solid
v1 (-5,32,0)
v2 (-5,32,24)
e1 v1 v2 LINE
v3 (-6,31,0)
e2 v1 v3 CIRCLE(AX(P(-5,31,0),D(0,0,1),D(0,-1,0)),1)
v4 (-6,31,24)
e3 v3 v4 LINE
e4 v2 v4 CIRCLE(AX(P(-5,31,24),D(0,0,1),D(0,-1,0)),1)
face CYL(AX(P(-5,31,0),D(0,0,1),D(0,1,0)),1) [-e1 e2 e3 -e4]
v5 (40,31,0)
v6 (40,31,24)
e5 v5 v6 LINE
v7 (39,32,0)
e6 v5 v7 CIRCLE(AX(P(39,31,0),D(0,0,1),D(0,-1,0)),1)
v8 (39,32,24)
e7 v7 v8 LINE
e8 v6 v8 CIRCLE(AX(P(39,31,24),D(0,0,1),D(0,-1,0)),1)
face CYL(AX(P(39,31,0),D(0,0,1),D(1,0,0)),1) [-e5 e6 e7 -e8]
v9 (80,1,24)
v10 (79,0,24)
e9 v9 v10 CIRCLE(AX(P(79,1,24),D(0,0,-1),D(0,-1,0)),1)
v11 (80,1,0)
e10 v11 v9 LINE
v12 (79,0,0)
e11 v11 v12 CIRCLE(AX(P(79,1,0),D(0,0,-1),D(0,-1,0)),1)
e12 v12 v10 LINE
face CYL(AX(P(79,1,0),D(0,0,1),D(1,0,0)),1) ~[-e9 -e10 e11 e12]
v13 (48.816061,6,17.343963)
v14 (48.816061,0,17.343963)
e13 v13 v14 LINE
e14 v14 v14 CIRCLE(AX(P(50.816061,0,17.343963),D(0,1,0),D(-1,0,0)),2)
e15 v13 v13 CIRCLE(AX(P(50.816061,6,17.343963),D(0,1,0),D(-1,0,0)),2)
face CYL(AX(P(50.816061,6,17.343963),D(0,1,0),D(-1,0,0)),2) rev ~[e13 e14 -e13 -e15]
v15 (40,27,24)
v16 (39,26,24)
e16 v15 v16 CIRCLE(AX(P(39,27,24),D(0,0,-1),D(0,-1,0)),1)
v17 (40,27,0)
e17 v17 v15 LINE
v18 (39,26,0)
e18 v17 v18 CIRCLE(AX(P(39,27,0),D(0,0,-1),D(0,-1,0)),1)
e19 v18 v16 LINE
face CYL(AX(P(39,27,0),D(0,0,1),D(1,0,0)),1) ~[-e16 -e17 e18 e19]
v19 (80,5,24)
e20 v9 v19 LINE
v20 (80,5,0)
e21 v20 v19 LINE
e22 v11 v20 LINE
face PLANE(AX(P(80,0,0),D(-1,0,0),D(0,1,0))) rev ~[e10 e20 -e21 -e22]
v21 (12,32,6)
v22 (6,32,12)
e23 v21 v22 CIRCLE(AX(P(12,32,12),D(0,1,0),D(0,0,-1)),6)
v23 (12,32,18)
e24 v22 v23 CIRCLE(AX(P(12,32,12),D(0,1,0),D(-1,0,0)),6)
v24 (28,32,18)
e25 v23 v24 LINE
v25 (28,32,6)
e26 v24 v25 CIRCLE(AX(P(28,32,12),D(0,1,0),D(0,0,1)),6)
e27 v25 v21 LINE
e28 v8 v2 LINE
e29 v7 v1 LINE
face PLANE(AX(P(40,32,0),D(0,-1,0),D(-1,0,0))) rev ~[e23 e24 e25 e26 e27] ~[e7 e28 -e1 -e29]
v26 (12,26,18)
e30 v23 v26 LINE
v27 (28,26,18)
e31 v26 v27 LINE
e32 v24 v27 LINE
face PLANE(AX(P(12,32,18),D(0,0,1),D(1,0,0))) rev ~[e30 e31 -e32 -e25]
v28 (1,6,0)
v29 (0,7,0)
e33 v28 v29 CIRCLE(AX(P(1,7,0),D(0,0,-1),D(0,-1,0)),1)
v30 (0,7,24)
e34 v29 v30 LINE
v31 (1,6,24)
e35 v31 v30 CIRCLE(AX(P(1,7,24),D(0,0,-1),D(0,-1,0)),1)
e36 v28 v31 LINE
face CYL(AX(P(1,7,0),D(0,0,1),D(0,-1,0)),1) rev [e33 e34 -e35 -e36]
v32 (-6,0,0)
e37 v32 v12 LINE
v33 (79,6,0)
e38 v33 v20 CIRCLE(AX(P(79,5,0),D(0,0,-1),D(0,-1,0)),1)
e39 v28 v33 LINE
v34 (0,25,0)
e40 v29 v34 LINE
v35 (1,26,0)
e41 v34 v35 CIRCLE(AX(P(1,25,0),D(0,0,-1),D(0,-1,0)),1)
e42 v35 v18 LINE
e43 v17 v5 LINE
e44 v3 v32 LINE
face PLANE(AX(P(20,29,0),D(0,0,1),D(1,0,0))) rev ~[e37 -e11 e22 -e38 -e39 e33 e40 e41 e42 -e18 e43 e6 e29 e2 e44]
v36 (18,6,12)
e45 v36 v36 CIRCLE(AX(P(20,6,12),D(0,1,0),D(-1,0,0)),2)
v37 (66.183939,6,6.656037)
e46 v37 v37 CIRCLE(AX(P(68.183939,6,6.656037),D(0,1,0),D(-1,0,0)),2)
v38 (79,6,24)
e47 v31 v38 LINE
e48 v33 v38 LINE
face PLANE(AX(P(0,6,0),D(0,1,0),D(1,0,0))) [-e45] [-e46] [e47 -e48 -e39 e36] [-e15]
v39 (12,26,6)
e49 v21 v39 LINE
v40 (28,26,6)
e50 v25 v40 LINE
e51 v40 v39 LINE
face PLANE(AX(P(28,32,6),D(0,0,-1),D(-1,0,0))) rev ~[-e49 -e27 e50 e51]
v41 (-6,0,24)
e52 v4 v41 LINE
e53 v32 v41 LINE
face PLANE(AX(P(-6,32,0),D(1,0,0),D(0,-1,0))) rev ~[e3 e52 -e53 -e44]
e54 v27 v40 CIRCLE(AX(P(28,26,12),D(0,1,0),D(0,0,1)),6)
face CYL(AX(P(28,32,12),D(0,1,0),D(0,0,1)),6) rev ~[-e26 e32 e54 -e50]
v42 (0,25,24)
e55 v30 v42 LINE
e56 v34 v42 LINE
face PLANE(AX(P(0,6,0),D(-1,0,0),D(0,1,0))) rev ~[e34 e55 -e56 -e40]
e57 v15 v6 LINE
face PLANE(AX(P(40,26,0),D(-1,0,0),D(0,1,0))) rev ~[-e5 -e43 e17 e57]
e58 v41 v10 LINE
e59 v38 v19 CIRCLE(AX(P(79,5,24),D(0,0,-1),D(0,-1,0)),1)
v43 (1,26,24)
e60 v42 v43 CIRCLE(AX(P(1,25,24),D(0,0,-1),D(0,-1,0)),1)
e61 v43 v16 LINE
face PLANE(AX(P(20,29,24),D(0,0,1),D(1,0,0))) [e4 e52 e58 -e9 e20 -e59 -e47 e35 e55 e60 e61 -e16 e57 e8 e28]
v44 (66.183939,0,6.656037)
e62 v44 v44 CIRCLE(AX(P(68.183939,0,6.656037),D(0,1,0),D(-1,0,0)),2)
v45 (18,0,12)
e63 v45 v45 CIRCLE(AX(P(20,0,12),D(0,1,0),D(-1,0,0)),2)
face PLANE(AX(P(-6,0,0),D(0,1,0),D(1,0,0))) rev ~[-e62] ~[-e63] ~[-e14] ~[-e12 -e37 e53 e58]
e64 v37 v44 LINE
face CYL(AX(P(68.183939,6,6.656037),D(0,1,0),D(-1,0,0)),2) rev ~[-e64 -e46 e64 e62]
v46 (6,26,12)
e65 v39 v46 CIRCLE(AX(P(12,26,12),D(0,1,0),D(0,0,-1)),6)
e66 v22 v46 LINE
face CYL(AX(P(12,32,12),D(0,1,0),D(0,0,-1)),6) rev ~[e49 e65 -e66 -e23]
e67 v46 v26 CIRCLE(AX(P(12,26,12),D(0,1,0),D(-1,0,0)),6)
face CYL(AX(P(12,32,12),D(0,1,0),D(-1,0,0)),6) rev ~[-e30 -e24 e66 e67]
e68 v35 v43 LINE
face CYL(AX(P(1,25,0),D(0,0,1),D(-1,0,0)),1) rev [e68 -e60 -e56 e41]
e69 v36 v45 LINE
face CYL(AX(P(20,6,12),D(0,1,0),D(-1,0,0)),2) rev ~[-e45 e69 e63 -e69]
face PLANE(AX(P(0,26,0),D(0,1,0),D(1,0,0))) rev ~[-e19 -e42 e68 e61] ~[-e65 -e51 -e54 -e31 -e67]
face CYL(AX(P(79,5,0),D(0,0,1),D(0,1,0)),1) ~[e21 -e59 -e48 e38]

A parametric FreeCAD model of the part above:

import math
import FreeCAD as App
import Part
import Sketcher
Q = App.Units.Quantity


def edges_at(feature, points):
    """Names of the edges that pass closest to the given points."""
    edges = feature.Shape.Edges
    near = lambda p: min(range(len(edges)), key=lambda i: edges[i].distToShape(Part.Vertex(*p))[0])
    return sorted({f"Edge{near(p) + 1}" for p in points})

doc = App.newDocument("Part")
body = doc.addObject("PartDesign::Body", "Body")

# Sketch on XY plane
sketch1 = body.newObject("Sketcher::SketchObject", "Sketch")
sketch1.AttachmentSupport = (doc.getObject("XY_Plane"), [""])
sketch1.MapMode = "FlatFace"
sketch1.addGeometry([
    Part.LineSegment(App.Vector(0, 26, 0), App.Vector(40, 26, 0)),  # 0
    Part.LineSegment(App.Vector(40, 26, 0), App.Vector(40, 32, 0)),  # 1
    Part.LineSegment(App.Vector(40, 32, 0), App.Vector(-6, 32, 0)),  # 2
    Part.LineSegment(App.Vector(-6, 32, 0), App.Vector(-6, 0, 0)),  # 3
    Part.LineSegment(App.Vector(-6, 0, 0), App.Vector(80, 0, 0)),  # 4
    Part.LineSegment(App.Vector(80, 0, 0), App.Vector(80, 6, 0)),  # 5
    Part.LineSegment(App.Vector(80, 6, 0), App.Vector(0, 6, 0)),  # 6
    Part.LineSegment(App.Vector(0, 6, 0), App.Vector(0, 26, 0)),  # 7
], False)
sketch1.addConstraint([
    Sketcher.Constraint("Coincident", 0, 2, 1, 1),
    Sketcher.Constraint("Coincident", 1, 2, 2, 1),
    Sketcher.Constraint("Coincident", 2, 2, 3, 1),
    Sketcher.Constraint("Coincident", 3, 2, 4, 1),
    Sketcher.Constraint("Coincident", 4, 2, 5, 1),
    Sketcher.Constraint("Coincident", 5, 2, 6, 1),
    Sketcher.Constraint("Coincident", 6, 2, 7, 1),
    Sketcher.Constraint("Coincident", 7, 2, 0, 1),
    Sketcher.Constraint("Horizontal", 0),
    Sketcher.Constraint("Vertical", 1),
    Sketcher.Constraint("Horizontal", 2),
    Sketcher.Constraint("Vertical", 3),
    Sketcher.Constraint("Horizontal", 4),
    Sketcher.Constraint("Vertical", 5),
    Sketcher.Constraint("Horizontal", 6),
    Sketcher.Constraint("Vertical", 7),
    Sketcher.Constraint("PointOnObject", 3, 2, -1),
    Sketcher.Constraint("PointOnObject", 6, 2, -2),
    Sketcher.Constraint("Equal", 1, 5),
    Sketcher.Constraint("DistanceX", 0, 1, 0, 2, Q("40 mm")),
    Sketcher.Constraint("DistanceX", 2, 2, 2, 1, Q("46 mm")),
    Sketcher.Constraint("DistanceX", 4, 1, 4, 2, Q("86 mm")),
    Sketcher.Constraint("DistanceY", 1, 1, 1, 2, Q("6 mm")),
    Sketcher.Constraint("DistanceY", 3, 2, 3, 1, Q("32 mm")),
])
pad1 = body.newObject("PartDesign::Pad", "Pad")
pad1.Profile = sketch1
pad1.Length = 24
doc.recompute()

fillet = body.newObject("PartDesign::Fillet", "Fillet")
fillet.Base = (pad1, edges_at(pad1, [(0, 6, 12)]))
fillet.Radius = 1
doc.recompute()

fillet2 = body.newObject("PartDesign::Fillet", "Fillet001")
fillet2.Base = (fillet, edges_at(fillet, [(80, 6, 12)]))
fillet2.Radius = 1
doc.recompute()

fillet3 = body.newObject("PartDesign::Fillet", "Fillet002")
fillet3.Base = (fillet2, edges_at(fillet2, [(80, 0, 12)]))
fillet3.Radius = 1
doc.recompute()

fillet4 = body.newObject("PartDesign::Fillet", "Fillet003")
fillet4.Base = (fillet3, edges_at(fillet3, [(0, 26, 12)]))
fillet4.Radius = 1
doc.recompute()

fillet5 = body.newObject("PartDesign::Fillet", "Fillet004")
fillet5.Base = (fillet4, edges_at(fillet4, [(40, 32, 12)]))
fillet5.Radius = 1
doc.recompute()

fillet6 = body.newObject("PartDesign::Fillet", "Fillet005")
fillet6.Base = (fillet5, edges_at(fillet5, [(40, 26, 12)]))
fillet6.Radius = 1
doc.recompute()

fillet7 = body.newObject("PartDesign::Fillet", "Fillet006")
fillet7.Base = (fillet6, edges_at(fillet6, [(-6, 32, 12)]))
fillet7.Radius = 1

# Sketch on XZ plane
sketch2 = body.newObject("Sketcher::SketchObject", "Sketch001")
sketch2.AttachmentSupport = (doc.getObject("XZ_Plane"), [""])
sketch2.MapMode = "FlatFace"
sketch2.AttachmentOffset = App.Placement(App.Vector(0, 0, -32), App.Rotation())
sketch2.addGeometry([
    Part.LineSegment(App.Vector(28, 6, 0), App.Vector(12, 6, 0)),  # 0
    Part.ArcOfCircle(Part.Circle(App.Vector(12, 12, 0), App.Vector(0, 0, 1), 6), math.radians(180), math.radians(270)),  # 1
    Part.ArcOfCircle(Part.Circle(App.Vector(12, 12, 0), App.Vector(0, 0, 1), 6), math.radians(90), math.radians(180)),  # 2
    Part.LineSegment(App.Vector(12, 18, 0), App.Vector(28, 18, 0)),  # 3
    Part.ArcOfCircle(Part.Circle(App.Vector(28, 12, 0), App.Vector(0, 0, 1), 6), math.radians(-90), math.radians(90)),  # 4
], False)
sketch2.addConstraint([
    Sketcher.Constraint("Tangent", 0, 2, 1, 2),
    Sketcher.Constraint("Tangent", 1, 1, 2, 2),
    Sketcher.Constraint("Tangent", 2, 1, 3, 1),
    Sketcher.Constraint("Tangent", 3, 2, 4, 2),
    Sketcher.Constraint("Tangent", 4, 1, 0, 1),
    Sketcher.Constraint("Horizontal", 0),
    Sketcher.Constraint("Horizontal", 3),
    Sketcher.Constraint("Equal", 1, 2),
    Sketcher.Constraint("Horizontal", 4, 3, 1, 1),
    Sketcher.Constraint("Radius", 1, Q("6 mm")),
    Sketcher.Constraint("DistanceX", 0, 2, 0, 1, Q("16 mm")),
    Sketcher.Constraint("DistanceX", -1, 1, 1, 3, Q("12 mm")),
    Sketcher.Constraint("DistanceY", -1, 1, 1, 3, Q("12 mm")),
])
pocket1 = body.newObject("PartDesign::Pocket", "Pocket")
pocket1.Profile = sketch2
pocket1.Length = 6
pocket1.Reversed = True

# Sketch on XZ plane
sketch3 = body.newObject("Sketcher::SketchObject", "Sketch002")
sketch3.AttachmentSupport = (doc.getObject("XZ_Plane"), [""])
sketch3.MapMode = "FlatFace"
sketch3.AttachmentOffset = App.Placement(App.Vector(0, 0, -6), App.Rotation())
sketch3.addGeometry([
    Part.Circle(App.Vector(20, 12, 0), App.Vector(0, 0, 1), 2),
    Part.Circle(App.Vector(68.183939, 6.656037, 0), App.Vector(0, 0, 1), 2),
    Part.Circle(App.Vector(50.816061, 17.343963, 0), App.Vector(0, 0, 1), 2),
], False)
sketch3.addConstraint([
    Sketcher.Constraint("Equal", 0, 1),
    Sketcher.Constraint("Equal", 1, 2),
    Sketcher.Constraint("Diameter", 0, Q("4 mm")),
    Sketcher.Constraint("DistanceX", -1, 1, 0, 3, Q("20 mm")),
    Sketcher.Constraint("DistanceY", -1, 1, 0, 3, Q("12 mm")),
    Sketcher.Constraint("DistanceX", -1, 1, 1, 3, Q("68.183939 mm")),
    Sketcher.Constraint("DistanceX", -1, 1, 2, 3, Q("50.816061 mm")),
    Sketcher.Constraint("DistanceY", -1, 1, 1, 3, Q("6.656037 mm")),
    Sketcher.Constraint("DistanceY", -1, 1, 2, 3, Q("17.343963 mm")),
])
pocket2 = body.newObject("PartDesign::Pocket", "Pocket001")
pocket2.Profile = sketch3
pocket2.Length = 6
pocket2.Reversed = True

doc.recompute()
